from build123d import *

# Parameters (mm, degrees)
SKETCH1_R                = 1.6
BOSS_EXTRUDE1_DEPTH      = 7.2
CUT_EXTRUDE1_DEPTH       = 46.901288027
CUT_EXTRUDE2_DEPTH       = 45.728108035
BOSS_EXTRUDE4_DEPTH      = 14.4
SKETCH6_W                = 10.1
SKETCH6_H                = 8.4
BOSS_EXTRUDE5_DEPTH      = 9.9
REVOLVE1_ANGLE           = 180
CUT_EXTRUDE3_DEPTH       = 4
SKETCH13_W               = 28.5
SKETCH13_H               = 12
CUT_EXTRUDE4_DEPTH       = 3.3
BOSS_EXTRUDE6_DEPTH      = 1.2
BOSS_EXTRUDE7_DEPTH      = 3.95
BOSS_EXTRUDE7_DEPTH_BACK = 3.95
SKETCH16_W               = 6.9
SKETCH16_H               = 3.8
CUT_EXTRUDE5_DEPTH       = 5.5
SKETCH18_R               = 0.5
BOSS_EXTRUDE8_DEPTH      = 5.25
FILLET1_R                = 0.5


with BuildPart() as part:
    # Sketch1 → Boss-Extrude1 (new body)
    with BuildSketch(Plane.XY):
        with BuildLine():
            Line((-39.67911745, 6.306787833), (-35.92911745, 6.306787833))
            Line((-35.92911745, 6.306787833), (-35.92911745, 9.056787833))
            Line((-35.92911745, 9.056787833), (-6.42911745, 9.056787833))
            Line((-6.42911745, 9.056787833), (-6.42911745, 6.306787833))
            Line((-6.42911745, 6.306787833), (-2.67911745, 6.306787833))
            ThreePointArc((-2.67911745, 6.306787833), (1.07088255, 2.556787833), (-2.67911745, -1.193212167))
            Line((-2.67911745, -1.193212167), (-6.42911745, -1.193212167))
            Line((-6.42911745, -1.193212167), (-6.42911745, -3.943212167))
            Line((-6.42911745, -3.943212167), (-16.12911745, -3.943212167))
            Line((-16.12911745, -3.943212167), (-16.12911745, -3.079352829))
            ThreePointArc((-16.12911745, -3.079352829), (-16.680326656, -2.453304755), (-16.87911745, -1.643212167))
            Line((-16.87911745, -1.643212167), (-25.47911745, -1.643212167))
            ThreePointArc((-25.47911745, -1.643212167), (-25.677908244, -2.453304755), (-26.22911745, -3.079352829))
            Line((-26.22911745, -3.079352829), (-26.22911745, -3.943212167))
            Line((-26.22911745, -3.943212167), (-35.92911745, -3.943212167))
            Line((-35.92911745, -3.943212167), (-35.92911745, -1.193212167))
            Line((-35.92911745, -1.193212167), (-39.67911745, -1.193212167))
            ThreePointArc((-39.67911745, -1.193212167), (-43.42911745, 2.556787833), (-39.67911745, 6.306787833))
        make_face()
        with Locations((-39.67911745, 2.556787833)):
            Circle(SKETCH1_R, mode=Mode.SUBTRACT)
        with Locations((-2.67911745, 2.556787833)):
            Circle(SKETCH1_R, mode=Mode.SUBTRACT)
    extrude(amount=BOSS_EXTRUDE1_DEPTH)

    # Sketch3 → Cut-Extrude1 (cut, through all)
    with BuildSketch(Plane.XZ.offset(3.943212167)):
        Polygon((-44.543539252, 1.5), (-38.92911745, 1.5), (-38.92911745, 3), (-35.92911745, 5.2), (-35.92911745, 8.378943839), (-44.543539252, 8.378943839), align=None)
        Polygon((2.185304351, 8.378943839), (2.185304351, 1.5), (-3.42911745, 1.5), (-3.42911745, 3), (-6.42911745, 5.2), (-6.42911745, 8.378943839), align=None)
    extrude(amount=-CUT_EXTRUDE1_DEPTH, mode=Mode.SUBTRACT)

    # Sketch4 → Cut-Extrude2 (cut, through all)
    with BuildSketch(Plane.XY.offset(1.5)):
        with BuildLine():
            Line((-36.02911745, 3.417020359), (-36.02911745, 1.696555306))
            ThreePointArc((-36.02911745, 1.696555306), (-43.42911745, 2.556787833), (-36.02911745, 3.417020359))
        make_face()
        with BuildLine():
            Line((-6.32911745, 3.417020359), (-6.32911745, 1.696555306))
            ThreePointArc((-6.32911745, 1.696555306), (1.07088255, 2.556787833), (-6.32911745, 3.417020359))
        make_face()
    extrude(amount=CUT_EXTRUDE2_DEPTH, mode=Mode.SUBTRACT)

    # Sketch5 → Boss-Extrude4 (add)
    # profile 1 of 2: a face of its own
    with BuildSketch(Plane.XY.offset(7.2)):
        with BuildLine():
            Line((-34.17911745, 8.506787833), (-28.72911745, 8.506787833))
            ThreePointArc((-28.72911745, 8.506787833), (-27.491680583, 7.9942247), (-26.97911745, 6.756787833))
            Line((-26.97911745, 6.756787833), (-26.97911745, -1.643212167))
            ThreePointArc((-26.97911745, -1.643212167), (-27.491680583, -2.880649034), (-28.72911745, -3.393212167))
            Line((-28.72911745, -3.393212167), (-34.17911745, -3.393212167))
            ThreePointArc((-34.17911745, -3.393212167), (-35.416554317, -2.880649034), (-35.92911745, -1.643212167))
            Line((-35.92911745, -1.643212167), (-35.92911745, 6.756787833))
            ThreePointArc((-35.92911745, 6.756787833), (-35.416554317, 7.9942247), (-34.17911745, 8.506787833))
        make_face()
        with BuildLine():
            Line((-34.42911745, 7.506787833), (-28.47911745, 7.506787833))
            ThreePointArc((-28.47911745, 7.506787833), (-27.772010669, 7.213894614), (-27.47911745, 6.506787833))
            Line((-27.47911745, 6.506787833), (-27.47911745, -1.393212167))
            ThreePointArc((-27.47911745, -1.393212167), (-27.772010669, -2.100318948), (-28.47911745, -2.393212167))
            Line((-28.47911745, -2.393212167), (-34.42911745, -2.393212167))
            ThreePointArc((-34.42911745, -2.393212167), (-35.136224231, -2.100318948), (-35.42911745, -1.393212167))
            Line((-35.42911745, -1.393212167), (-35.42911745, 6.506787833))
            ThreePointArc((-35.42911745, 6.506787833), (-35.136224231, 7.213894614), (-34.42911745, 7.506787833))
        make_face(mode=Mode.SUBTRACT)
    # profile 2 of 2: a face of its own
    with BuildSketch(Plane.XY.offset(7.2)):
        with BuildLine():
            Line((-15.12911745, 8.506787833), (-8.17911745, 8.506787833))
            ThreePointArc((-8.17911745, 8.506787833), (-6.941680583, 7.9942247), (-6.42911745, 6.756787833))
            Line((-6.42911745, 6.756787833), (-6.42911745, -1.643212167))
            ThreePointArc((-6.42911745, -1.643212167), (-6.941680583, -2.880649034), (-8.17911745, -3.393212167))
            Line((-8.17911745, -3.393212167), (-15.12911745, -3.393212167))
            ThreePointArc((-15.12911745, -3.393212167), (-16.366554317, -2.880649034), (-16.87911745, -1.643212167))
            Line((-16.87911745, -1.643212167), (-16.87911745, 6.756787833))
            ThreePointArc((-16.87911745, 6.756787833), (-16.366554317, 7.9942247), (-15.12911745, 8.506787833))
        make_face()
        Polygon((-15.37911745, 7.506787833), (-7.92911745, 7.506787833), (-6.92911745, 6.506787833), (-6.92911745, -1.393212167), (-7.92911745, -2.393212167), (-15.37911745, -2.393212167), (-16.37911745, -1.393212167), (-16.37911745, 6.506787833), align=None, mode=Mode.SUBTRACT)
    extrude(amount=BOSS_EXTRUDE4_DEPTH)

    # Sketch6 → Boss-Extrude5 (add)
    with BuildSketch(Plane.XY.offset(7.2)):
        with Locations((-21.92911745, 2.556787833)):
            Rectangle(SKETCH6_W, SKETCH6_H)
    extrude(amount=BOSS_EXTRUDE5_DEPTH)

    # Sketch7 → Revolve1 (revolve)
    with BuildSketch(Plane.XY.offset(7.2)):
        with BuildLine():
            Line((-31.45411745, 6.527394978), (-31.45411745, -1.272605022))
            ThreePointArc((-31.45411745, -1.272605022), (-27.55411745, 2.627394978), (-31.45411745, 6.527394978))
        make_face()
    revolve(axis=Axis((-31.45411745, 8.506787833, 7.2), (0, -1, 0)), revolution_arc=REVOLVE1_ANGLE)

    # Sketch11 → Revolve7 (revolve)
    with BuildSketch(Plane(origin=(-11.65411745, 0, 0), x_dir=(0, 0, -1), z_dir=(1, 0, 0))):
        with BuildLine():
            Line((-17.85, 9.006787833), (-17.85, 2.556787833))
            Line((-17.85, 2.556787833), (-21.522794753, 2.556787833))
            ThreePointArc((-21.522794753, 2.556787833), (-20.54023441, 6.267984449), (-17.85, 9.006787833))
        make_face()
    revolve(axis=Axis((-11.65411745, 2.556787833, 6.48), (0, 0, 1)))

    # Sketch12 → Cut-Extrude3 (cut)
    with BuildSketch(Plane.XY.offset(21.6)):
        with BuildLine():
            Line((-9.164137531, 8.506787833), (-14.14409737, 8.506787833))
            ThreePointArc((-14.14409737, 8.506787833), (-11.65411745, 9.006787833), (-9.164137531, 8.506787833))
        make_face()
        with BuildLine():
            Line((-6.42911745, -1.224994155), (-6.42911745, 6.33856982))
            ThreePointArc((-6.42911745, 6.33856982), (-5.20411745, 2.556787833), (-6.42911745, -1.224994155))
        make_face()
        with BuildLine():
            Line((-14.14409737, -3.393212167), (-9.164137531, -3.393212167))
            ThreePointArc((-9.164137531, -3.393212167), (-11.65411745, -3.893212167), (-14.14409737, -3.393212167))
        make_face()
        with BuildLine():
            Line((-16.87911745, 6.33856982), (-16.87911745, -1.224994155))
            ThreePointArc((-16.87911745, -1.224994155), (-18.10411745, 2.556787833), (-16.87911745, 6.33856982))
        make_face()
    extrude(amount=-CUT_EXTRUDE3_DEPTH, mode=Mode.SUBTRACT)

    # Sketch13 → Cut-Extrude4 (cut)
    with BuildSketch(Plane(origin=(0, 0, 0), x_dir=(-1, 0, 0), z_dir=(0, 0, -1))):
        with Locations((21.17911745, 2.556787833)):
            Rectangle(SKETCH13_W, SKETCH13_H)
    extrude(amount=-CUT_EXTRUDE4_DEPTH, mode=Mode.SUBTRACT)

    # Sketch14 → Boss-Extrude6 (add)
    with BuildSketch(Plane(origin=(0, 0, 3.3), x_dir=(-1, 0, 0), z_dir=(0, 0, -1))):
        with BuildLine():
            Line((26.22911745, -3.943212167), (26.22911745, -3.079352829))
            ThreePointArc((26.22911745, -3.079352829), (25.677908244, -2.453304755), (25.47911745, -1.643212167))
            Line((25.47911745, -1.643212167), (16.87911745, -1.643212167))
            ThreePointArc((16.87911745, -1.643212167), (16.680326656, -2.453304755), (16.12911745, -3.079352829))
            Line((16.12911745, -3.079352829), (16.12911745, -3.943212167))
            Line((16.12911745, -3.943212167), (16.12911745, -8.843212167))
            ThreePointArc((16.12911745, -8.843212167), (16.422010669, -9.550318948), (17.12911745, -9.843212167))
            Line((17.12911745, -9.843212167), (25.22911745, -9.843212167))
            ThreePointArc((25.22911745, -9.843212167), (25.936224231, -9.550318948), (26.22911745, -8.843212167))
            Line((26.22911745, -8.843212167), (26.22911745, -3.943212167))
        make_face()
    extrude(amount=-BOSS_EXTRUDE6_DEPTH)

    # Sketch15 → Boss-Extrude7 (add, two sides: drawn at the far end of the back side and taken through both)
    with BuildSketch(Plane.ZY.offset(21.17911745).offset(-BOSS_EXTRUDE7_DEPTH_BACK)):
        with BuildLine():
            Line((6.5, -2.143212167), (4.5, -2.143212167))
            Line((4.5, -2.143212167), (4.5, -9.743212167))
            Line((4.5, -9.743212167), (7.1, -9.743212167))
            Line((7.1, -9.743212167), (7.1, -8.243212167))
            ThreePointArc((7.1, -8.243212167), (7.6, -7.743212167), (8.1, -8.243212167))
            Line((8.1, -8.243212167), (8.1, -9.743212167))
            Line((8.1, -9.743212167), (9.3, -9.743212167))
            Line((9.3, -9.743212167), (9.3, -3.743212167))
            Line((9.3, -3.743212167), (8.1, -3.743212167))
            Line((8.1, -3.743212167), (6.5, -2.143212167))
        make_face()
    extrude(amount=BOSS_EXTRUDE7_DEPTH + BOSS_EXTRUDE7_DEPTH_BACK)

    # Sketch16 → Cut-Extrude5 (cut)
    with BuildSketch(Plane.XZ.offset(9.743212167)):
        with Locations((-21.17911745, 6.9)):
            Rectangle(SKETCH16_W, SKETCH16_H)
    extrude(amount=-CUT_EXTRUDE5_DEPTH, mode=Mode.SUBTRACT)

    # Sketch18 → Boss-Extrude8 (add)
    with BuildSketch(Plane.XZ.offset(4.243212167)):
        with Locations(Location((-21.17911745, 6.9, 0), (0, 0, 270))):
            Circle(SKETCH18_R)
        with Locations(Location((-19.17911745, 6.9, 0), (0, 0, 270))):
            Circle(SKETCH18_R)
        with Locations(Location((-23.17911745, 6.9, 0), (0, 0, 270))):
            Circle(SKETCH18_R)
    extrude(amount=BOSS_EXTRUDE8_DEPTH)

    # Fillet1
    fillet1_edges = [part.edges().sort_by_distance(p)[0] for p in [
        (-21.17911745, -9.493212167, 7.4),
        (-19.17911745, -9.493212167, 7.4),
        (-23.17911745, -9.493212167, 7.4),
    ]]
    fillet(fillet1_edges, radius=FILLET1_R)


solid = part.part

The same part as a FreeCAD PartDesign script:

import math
import FreeCAD as App
import Part
import Sketcher

V = App.Vector
Q = App.Units.Quantity


def edges_at(feature, points):
    """Names of the edges that pass closest to the given points."""
    edges = feature.Shape.Edges
    near = lambda p: min(range(len(edges)), key=lambda i: edges[i].distToShape(Part.Vertex(*p))[0])
    return sorted({f"Edge{near(p) + 1}" for p in points})


def add_polygon(sketch, points):
    """Adds a closed chain of lines whose ends are joined by coincident constraints."""
    first, n = sketch.GeometryCount, len(points)
    for a, b in zip(points, points[1:] + points[:1]):
        sketch.addGeometry(Part.LineSegment(App.Vector(*a, 0), App.Vector(*b, 0)), False)
    for i in range(n):
        sketch.addConstraint(Sketcher.Constraint("Coincident", first + i, 2, first + (i + 1) % n, 1))

doc = App.newDocument("Part")
body = doc.addObject("PartDesign::Body", "Body")

sketch1 = body.newObject("Sketcher::SketchObject", "Sketch")
sketch1.AttachmentSupport = (doc.getObject("XY_Plane"), [""])
sketch1.MapMode = "FlatFace"
sketch1.addGeometry([
    Part.LineSegment(V(-35.929117, 6.306788, 0), V(-39.679117, 6.306788, 0)),
    Part.ArcOfCircle(Part.Circle(V(-39.679117, 2.556788, 0), V(0, 0, 1), 3.75), math.radians(90), math.radians(270)),
    Part.LineSegment(V(-39.679117, -1.193212, 0), V(-35.929117, -1.193212, 0)),
    Part.LineSegment(V(-35.929117, -1.193212, 0), V(-35.929117, -3.943212, 0)),
    Part.LineSegment(V(-35.929117, -3.943212, 0), V(-26.229117, -3.943212, 0)),
    Part.LineSegment(V(-26.229117, -3.943212, 0), V(-26.229117, -3.079353, 0)),
    Part.ArcOfCircle(Part.Circle(V(-27.229117, -1.643212, 0), V(0, 0, 1), 1.75), math.radians(-55.150095), math.radians(0)),
    Part.LineSegment(V(-25.479117, -1.643212, 0), V(-16.879117, -1.643212, 0)),
    Part.ArcOfCircle(Part.Circle(V(-15.129117, -1.643212, 0), V(0, 0, 1), 1.75), math.radians(180), math.radians(235.150095)),
    Part.LineSegment(V(-16.129117, -3.079353, 0), V(-16.129117, -3.943212, 0)),
    Part.LineSegment(V(-16.129117, -3.943212, 0), V(-6.429117, -3.943212, 0)),
    Part.LineSegment(V(-6.429117, -3.943212, 0), V(-6.429117, -1.193212, 0)),
    Part.LineSegment(V(-6.429117, -1.193212, 0), V(-2.679117, -1.193212, 0)),
    Part.ArcOfCircle(Part.Circle(V(-2.679117, 2.556788, 0), V(0, 0, 1), 3.75), math.radians(-90), math.radians(90)),
    Part.LineSegment(V(-2.679117, 6.306788, 0), V(-6.429117, 6.306788, 0)),
    Part.LineSegment(V(-6.429117, 6.306788, 0), V(-6.429117, 9.056788, 0)),
    Part.LineSegment(V(-6.429117, 9.056788, 0), V(-35.929117, 9.056788, 0)),
    Part.LineSegment(V(-35.929117, 9.056788, 0), V(-35.929117, 6.306788, 0)),
    Part.Circle(V(-2.679117, 2.556788, 0), V(0, 0, 1), 1.6),
    Part.Circle(V(-39.679117, 2.556788, 0), V(0, 0, 1), 1.6),
], False)
sketch1.addConstraint([
    Sketcher.Constraint("Tangent", 0, 2, 1, 1),
    Sketcher.Constraint("Tangent", 1, 2, 2, 1),
    Sketcher.Constraint("Coincident", 2, 2, 3, 1),
    Sketcher.Constraint("Coincident", 3, 2, 4, 1),
    Sketcher.Constraint("Coincident", 4, 2, 5, 1),
    Sketcher.Constraint("Coincident", 5, 2, 6, 1),
    Sketcher.Constraint("Coincident", 6, 2, 7, 1),
    Sketcher.Constraint("Coincident", 7, 2, 8, 1),
    Sketcher.Constraint("Coincident", 8, 2, 9, 1),
    Sketcher.Constraint("Coincident", 9, 2, 10, 1),
    Sketcher.Constraint("Coincident", 10, 2, 11, 1),
    Sketcher.Constraint("Coincident", 11, 2, 12, 1),
    Sketcher.Constraint("Tangent", 12, 2, 13, 1),
    Sketcher.Constraint("Tangent", 13, 2, 14, 1),
    Sketcher.Constraint("Coincident", 14, 2, 15, 1),
    Sketcher.Constraint("Coincident", 15, 2, 16, 1),
    Sketcher.Constraint("Coincident", 16, 2, 17, 1),
    Sketcher.Constraint("Coincident", 17, 2, 0, 1),
    Sketcher.Constraint("Horizontal", 0),
    Sketcher.Constraint("Horizontal", 2),
    Sketcher.Constraint("Vertical", 3),
    Sketcher.Constraint("Horizontal", 4),
    Sketcher.Constraint("Vertical", 5),
    Sketcher.Constraint("Horizontal", 7),
    Sketcher.Constraint("Vertical", 9),
    Sketcher.Constraint("Horizontal", 10),
    Sketcher.Constraint("Vertical", 11),
    Sketcher.Constraint("Horizontal", 12),
    Sketcher.Constraint("Horizontal", 14),
    Sketcher.Constraint("Vertical", 15),
    Sketcher.Constraint("Horizontal", 16),
    Sketcher.Constraint("Vertical", 17),
    Sketcher.Constraint("Coincident", 18, 3, 13, 3),
    Sketcher.Constraint("Coincident", 19, 3, 1, 3),
    Sketcher.Constraint("Equal", 6, 8),
    Sketcher.Constraint("Equal", 1, 13),
    Sketcher.Constraint("Equal", 18, 19),
    Sketcher.Constraint("Horizontal", 6, 3, 8, 3),
    Sketcher.Constraint("Horizontal", 1, 3, 13, 3),
    Sketcher.Constraint("Horizontal", 8, 3, 6, 2),
    Sketcher.Constraint("Horizontal", 5, 2, 8, 2),
    Sketcher.Constraint("Horizontal", 4, 2, 9, 2),
    Sketcher.Constraint("Vertical", 11, 2, 14, 2),
    Sketcher.Constraint("Vertical", 3, 2, 16, 2),
    Sketcher.Constraint("Equal", 4, 10),
    Sketcher.Constraint("Equal", 2, 12),
    Sketcher.Constraint("Equal", 11, 15),
    Sketcher.Constraint("Diameter", 18, Q("3.2 mm")),
    Sketcher.Constraint("Radius", 1, Q("3.75 mm")),
    Sketcher.Constraint("Radius", 6, Q("1.75 mm")),
    Sketcher.Constraint("DistanceX", 4, 1, 4, 2, Q("9.7 mm")),
    Sketcher.Constraint("DistanceX", 7, 1, 7, 2, Q("8.6 mm")),
    Sketcher.Constraint("DistanceX", 16, 2, 16, 1, Q("29.5 mm")),
    Sketcher.Constraint("DistanceX", 1, 3, 13, 3, Q("37 mm")),
    Sketcher.Constraint("DistanceY", 3, 2, 3, 1, Q("2.75 mm")),
    Sketcher.Constraint("DistanceY", 6, 3, 1, 3, Q("4.2 mm")),
    Sketcher.Constraint("DistanceX", 1, 3, -1, 1, Q("39.679117 mm")),
    Sketcher.Constraint("DistanceY", -1, 1, 1, 3, Q("2.556788 mm")),
])
pad1 = body.newObject("PartDesign::Pad", "Pad")
pad1.Profile = sketch1
pad1.Length = 7.2

sketch2 = body.newObject("Sketcher::SketchObject", "Sketch001")
sketch2.AttachmentSupport = (doc.getObject("XZ_Plane"), [""])
sketch2.MapMode = "FlatFace"
sketch2.AttachmentOffset = App.Placement(V(0, 0, 3.943212), App.Rotation())
add_polygon(sketch2, [(-44.543539, 1.5), (-38.929117, 1.5), (-38.929117, 3), (-35.929117, 5.2), (-35.929117, 8.378944), (-44.543539, 8.378944)])
add_polygon(sketch2, [(2.185304, 1.5), (2.185304, 8.378944), (-6.429117, 8.378944), (-6.429117, 5.2), (-3.429117, 3), (-3.429117, 1.5)])
sketch2.addConstraint([
    Sketcher.Constraint("Horizontal", 0),
    Sketcher.Constraint("Vertical", 1),
    Sketcher.Constraint("Vertical", 3),
    Sketcher.Constraint("Horizontal", 4),
    Sketcher.Constraint("Vertical", 5),
    Sketcher.Constraint("Vertical", 6),
    Sketcher.Constraint("Horizontal", 7),
    Sketcher.Constraint("Vertical", 8),
    Sketcher.Constraint("Vertical", 10),
    Sketcher.Constraint("Horizontal", 11),
    Sketcher.Constraint("Horizontal", 4, 2, 6, 2),
    Sketcher.Constraint("Horizontal", 2, 2, 8, 2),
    Sketcher.Constraint("Horizontal", 1, 2, 9, 2),
    Sketcher.Constraint("Horizontal", 5, 2, 10, 2),
    Sketcher.Constraint("Equal", 4, 7),
    Sketcher.Constraint("Equal", 0, 11),
    Sketcher.Constraint("DistanceY", 1, 1, 1, 2, Q("1.5 mm")),
    Sketcher.Constraint("DistanceY", -1, 1, 1, 2, Q("3 mm")),
    Sketcher.Constraint("DistanceX", 1, 2, 2, 2, Q("3 mm")),
    Sketcher.Constraint("DistanceY", -1, 1, 2, 2, Q("5.2 mm")),
    Sketcher.Constraint("DistanceX", 3, 2, 7, 2, Q("29.5 mm")),
    Sketcher.Constraint("DistanceX", 0, 1, 0, 2, Q("5.614422 mm")),
    Sketcher.Constraint("DistanceY", 3, 1, 3, 2, Q("3.178944 mm")),
    Sketcher.Constraint("DistanceX", 4, 2, -1, 1, Q("44.543539 mm")),
])
pocket1 = body.newObject("PartDesign::Pocket", "Pocket")
pocket1.Profile = sketch2
pocket1.Type = "ThroughAll"

sketch3 = body.newObject("Sketcher::SketchObject", "Sketch002")
sketch3.AttachmentSupport = (doc.getObject("XY_Plane"), [""])
sketch3.MapMode = "FlatFace"
sketch3.AttachmentOffset = App.Placement(V(0, 0, 1.5), App.Rotation())
sketch3.addGeometry([
    Part.LineSegment(V(-36.029117, 1.696555, 0), V(-36.029117, 3.41702, 0)),
    Part.ArcOfCircle(Part.Circle(V(-39.679117, 2.556788, 0), V(0, 0, 1), 3.75), math.radians(13.261476), math.radians(346.738524)),
    Part.LineSegment(V(-6.329117, 3.41702, 0), V(-6.329117, 1.696555, 0)),
    Part.ArcOfCircle(Part.Circle(V(-2.679117, 2.556788, 0), V(0, 0, 1), 3.75), math.radians(-166.738524), math.radians(166.738524)),
], False)
sketch3.addConstraint([
    Sketcher.Constraint("Coincident", 0, 1, 1, 2),
    Sketcher.Constraint("Coincident", 1, 1, 0, 2),
    Sketcher.Constraint("Coincident", 2, 1, 3, 2),
    Sketcher.Constraint("Coincident", 3, 1, 2, 2),
    Sketcher.Constraint("Vertical", 0),
    Sketcher.Constraint("Vertical", 2),
    Sketcher.Constraint("Equal", 1, 3),
    Sketcher.Constraint("Horizontal", 1, 3, 3, 3),
    Sketcher.Constraint("Horizontal", 1, 1, 2, 1),
    Sketcher.Constraint("Radius", 1, Q("3.75 mm")),
    Sketcher.Constraint("DistanceX", 1, 3, 3, 3, Q("37 mm")),
    Sketcher.Constraint("DistanceX", 1, 1, 2, 1, Q("29.7 mm")),
    Sketcher.Constraint("DistanceY", -1, 1, 1, 1, Q("3.41702 mm")),
    Sketcher.Constraint("DistanceX", 1, 3, -1, 1, Q("39.679117 mm")),
])
pocket2 = body.newObject("PartDesign::Pocket", "Pocket001")
pocket2.Profile = sketch3
pocket2.Type = "ThroughAll"
pocket2.Reversed = True

sketch4 = body.newObject("Sketcher::SketchObject", "Sketch003")
sketch4.AttachmentSupport = (doc.getObject("XY_Plane"), [""])
sketch4.MapMode = "FlatFace"
sketch4.AttachmentOffset = App.Placement(V(0, 0, 7.2), App.Rotation())
sketch4.addGeometry(Part.LineSegment(V(-28.729117, 8.506788, 0), V(-34.179117, 8.506788, 0)), False)
sketch4.addGeometry(Part.ArcOfCircle(Part.Circle(V(-34.179117, 6.756788, 0), V(0, 0, 1), 1.75), math.radians(90), math.radians(180)), False)
sketch4.addGeometry(Part.LineSegment(V(-35.929117, 6.756788, 0), V(-35.929117, -1.643212, 0)), False)
sketch4.addGeometry(Part.ArcOfCircle(Part.Circle(V(-34.179117, -1.643212, 0), V(0, 0, 1), 1.75), math.radians(180), math.radians(270)), False)
sketch4.addGeometry(Part.LineSegment(V(-34.179117, -3.393212, 0), V(-28.729117, -3.393212, 0)), False)
sketch4.addGeometry(Part.ArcOfCircle(Part.Circle(V(-28.729117, -1.643212, 0), V(0, 0, 1), 1.75), math.radians(-90), math.radians(0)), False)
sketch4.addGeometry(Part.LineSegment(V(-26.979117, -1.643212, 0), V(-26.979117, 6.756788, 0)), False)
sketch4.addGeometry(Part.ArcOfCircle(Part.Circle(V(-28.729117, 6.756788, 0), V(0, 0, 1), 1.75), math.radians(0), math.radians(90)), False)
sketch4.addGeometry(Part.LineSegment(V(-34.429117, 7.506788, 0), V(-28.479117, 7.506788, 0)), False)
sketch4.addGeometry(Part.ArcOfCircle(Part.Circle(V(-28.479117, 6.506788, 0), V(0, 0, 1), 1), math.radians(0), math.radians(90)), False)
sketch4.addGeometry(Part.LineSegment(V(-27.479117, 6.506788, 0), V(-27.479117, -1.393212, 0)), False)
sketch4.addGeometry(Part.ArcOfCircle(Part.Circle(V(-28.479117, -1.393212, 0), V(0, 0, 1), 1), math.radians(-90), math.radians(0)), False)
sketch4.addGeometry(Part.LineSegment(V(-28.479117, -2.393212, 0), V(-34.429117, -2.393212, 0)), False)
sketch4.addGeometry(Part.ArcOfCircle(Part.Circle(V(-34.429117, -1.393212, 0), V(0, 0, 1), 1), math.radians(-180), math.radians(-90)), False)
sketch4.addGeometry(Part.LineSegment(V(-35.429117, -1.393212, 0), V(-35.429117, 6.506788, 0)), False)
sketch4.addGeometry(Part.ArcOfCircle(Part.Circle(V(-34.429117, 6.506788, 0), V(0, 0, 1), 1), math.radians(90), math.radians(180)), False)
sketch4.addGeometry(Part.LineSegment(V(-8.179117, 8.506788, 0), V(-15.129117, 8.506788, 0)), False)
sketch4.addGeometry(Part.ArcOfCircle(Part.Circle(V(-15.129117, 6.756788, 0), V(0, 0, 1), 1.75), math.radians(90), math.radians(180)), False)
sketch4.addGeometry(Part.LineSegment(V(-16.879117, 6.756788, 0), V(-16.879117, -1.643212, 0)), False)
sketch4.addGeometry(Part.ArcOfCircle(Part.Circle(V(-15.129117, -1.643212, 0), V(0, 0, 1), 1.75), math.radians(180), math.radians(270)), False)
sketch4.addGeometry(Part.LineSegment(V(-15.129117, -3.393212, 0), V(-8.179117, -3.393212, 0)), False)
sketch4.addGeometry(Part.ArcOfCircle(Part.Circle(V(-8.179117, -1.643212, 0), V(0, 0, 1), 1.75), math.radians(-90), math.radians(0)), False)
sketch4.addGeometry(Part.LineSegment(V(-6.429117, -1.643212, 0), V(-6.429117, 6.756788, 0)), False)
sketch4.addGeometry(Part.ArcOfCircle(Part.Circle(V(-8.179117, 6.756788, 0), V(0, 0, 1), 1.75), math.radians(0), math.radians(90)), False)
add_polygon(sketch4, [(-15.379117, 7.506788), (-7.929117, 7.506788), (-6.929117, 6.506788), (-6.929117, -1.393212), (-7.929117, -2.393212), (-15.379117, -2.393212), (-16.379117, -1.393212), (-16.379117, 6.506788)])
sketch4.addConstraint([
    Sketcher.Constraint("Tangent", 0, 2, 1, 1),
    Sketcher.Constraint("Tangent", 1, 2, 2, 1),
    Sketcher.Constraint("Tangent", 2, 2, 3, 1),
    Sketcher.Constraint("Tangent", 3, 2, 4, 1),
    Sketcher.Constraint("Tangent", 4, 2, 5, 1),
    Sketcher.Constraint("Tangent", 5, 2, 6, 1),
    Sketcher.Constraint("Tangent", 6, 2, 7, 1),
    Sketcher.Constraint("Tangent", 7, 2, 0, 1),
    Sketcher.Constraint("Tangent", 8, 2, 9, 2),
    Sketcher.Constraint("Tangent", 9, 1, 10, 1),
    Sketcher.Constraint("Tangent", 10, 2, 11, 2),
    Sketcher.Constraint("Tangent", 11, 1, 12, 1),
    Sketcher.Constraint("Tangent", 12, 2, 13, 2),
    Sketcher.Constraint("Tangent", 13, 1, 14, 1),
    Sketcher.Constraint("Tangent", 14, 2, 15, 2),
    Sketcher.Constraint("Tangent", 15, 1, 8, 1),
    Sketcher.Constraint("Tangent", 16, 2, 17, 1),
    Sketcher.Constraint("Tangent", 17, 2, 18, 1),
    Sketcher.Constraint("Tangent", 18, 2, 19, 1),
    Sketcher.Constraint("Tangent", 19, 2, 20, 1),
    Sketcher.Constraint("Tangent", 20, 2, 21, 1),
    Sketcher.Constraint("Tangent", 21, 2, 22, 1),
    Sketcher.Constraint("Tangent", 22, 2, 23, 1),
    Sketcher.Constraint("Tangent", 23, 2, 16, 1),
    Sketcher.Constraint("Horizontal", 0),
    Sketcher.Constraint("Vertical", 2),
    Sketcher.Constraint("Horizontal", 4),
    Sketcher.Constraint("Vertical", 6),
    Sketcher.Constraint("Horizontal", 8),
    Sketcher.Constraint("Vertical", 10),
    Sketcher.Constraint("Horizontal", 12),
    Sketcher.Constraint("Vertical", 14),
    Sketcher.Constraint("Horizontal", 16),
    Sketcher.Constraint("Vertical", 18),
    Sketcher.Constraint("Horizontal", 20),
    Sketcher.Constraint("Vertical", 22),
    Sketcher.Constraint("Horizontal", 24),
    Sketcher.Constraint("Vertical", 26),
    Sketcher.Constraint("Horizontal", 28),
    Sketcher.Constraint("Vertical", 30),
    Sketcher.Constraint("Equal", 1, 3),
    Sketcher.Constraint("Equal", 3, 5),
    Sketcher.Constraint("Equal", 5, 7),
    Sketcher.Constraint("Equal", 9, 11),
    Sketcher.Constraint("Equal", 11, 13),
    Sketcher.Constraint("Equal", 13, 15),
    Sketcher.Constraint("Equal", 7, 17),
    Sketcher.Constraint("Equal", 17, 19),
    Sketcher.Constraint("Equal", 19, 21),
    Sketcher.Constraint("Equal", 21, 23),
    Sketcher.Constraint("Perpendicular", 25, 27),
    Sketcher.Constraint("Perpendicular", 27, 29),
    Sketcher.Constraint("Perpendicular", 29, 31),
    Sketcher.Constraint("Horizontal", 7, 3, 17, 3),
    Sketcher.Constraint("Horizontal", 5, 3, 19, 3),
    Sketcher.Constraint("Horizontal", 15, 1, 24, 2),
    Sketcher.Constraint("Horizontal", 14, 2, 25, 2),
    Sketcher.Constraint("Horizontal", 13, 1, 26, 2),
    Sketcher.Constraint("Horizontal", 12, 2, 27, 2),
    Sketcher.Constraint("Horizontal", 26, 2, 29, 2),
    Sketcher.Constraint("Horizontal", 25, 2, 30, 2),
    Sketcher.Constraint("Vertical", 24, 2, 27, 2),
    Sketcher.Constraint("Radius", 9, Q("1 mm")),
    Sketcher.Constraint("Radius", 1, Q("1.75 mm")),
    Sketcher.Constraint("DistanceY", 2, 2, 2, 1, Q("8.4 mm")),
    Sketcher.Constraint("DistanceY", 10, 2, 10, 1, Q("7.9 mm")),
    Sketcher.Constraint("DistanceY", 15, 3, 0, 2, Q("2 mm")),
    Sketcher.Constraint("DistanceX", 0, 2, 0, 1, Q("5.45 mm")),
    Sketcher.Constraint("DistanceX", 8, 1, 8, 2, Q("5.95 mm")),
    Sketcher.Constraint("DistanceX", 16, 2, 16, 1, Q("6.95 mm")),
    Sketcher.Constraint("DistanceX", 24, 1, 24, 2, Q("7.45 mm")),
    Sketcher.Constraint("DistanceX", 1, 3, 9, 3, Q("5.7 mm")),
    Sketcher.Constraint("DistanceX", 7, 3, 17, 3, Q("13.6 mm")),
    Sketcher.Constraint("DistanceX", 24, 2, 22, 2, Q("1.5 mm")),
    Sketcher.Constraint("DistanceX", 1, 3, -1, 1, Q("34.179117 mm")),
    Sketcher.Constraint("DistanceY", -1, 1, 1, 3, Q("6.756788 mm")),
])
pad2 = body.newObject("PartDesign::Pad", "Pad001")
pad2.Profile = sketch4
pad2.Length = 14.4

sketch5 = body.newObject("Sketcher::SketchObject", "Sketch004")
sketch5.AttachmentSupport = (doc.getObject("XY_Plane"), [""])
sketch5.MapMode = "FlatFace"
sketch5.AttachmentOffset = App.Placement(V(0, 0, 7.2), App.Rotation())
add_polygon(sketch5, [(-26.979117, 6.756788), (-26.979117, -1.643212), (-16.879117, -1.643212), (-16.879117, 6.756788)])
sketch5.addConstraint([
    Sketcher.Constraint("Vertical", 0),
    Sketcher.Constraint("Horizontal", 1),
    Sketcher.Constraint("Vertical", 2),
    Sketcher.Constraint("Horizontal", 3),
    Sketcher.Constraint("DistanceX", 1, 1, 1, 2, Q("10.1 mm")),
    Sketcher.Constraint("DistanceY", 0, 2, 0, 1, Q("8.4 mm")),
    Sketcher.Constraint("DistanceX", 0, 2, -1, 1, Q("26.979117 mm")),
    Sketcher.Constraint("DistanceY", 0, 2, -1, 1, Q("1.643212 mm")),
])
pad3 = body.newObject("PartDesign::Pad", "Pad002")
pad3.Profile = sketch5
pad3.Length = 9.9

sketch6 = body.newObject("Sketcher::SketchObject", "Sketch005")
sketch6.AttachmentSupport = (doc.getObject("XY_Plane"), [""])
sketch6.MapMode = "FlatFace"
sketch6.AttachmentOffset = App.Placement(V(0, 0, 7.2), App.Rotation())
sketch6.addGeometry([
    Part.LineSegment(V(-31.454117, 6.527395, 0), V(-31.454117, -1.272605, 0)),
    Part.ArcOfCircle(Part.Circle(V(-31.454117, 2.627395, 0), V(0, 0, 1), 3.9), math.radians(-90), math.radians(90)),
], False)
sketch6.addGeometry(Part.LineSegment(V(-31.454117, 6.527395, 0), V(-31.454117, -1.272605, 0)), True)
sketch6.addConstraint([
    Sketcher.Constraint("Coincident", 0, 1, 1, 2),
    Sketcher.Constraint("Coincident", 1, 1, 0, 2),
    Sketcher.Constraint("Vertical", 0),
    Sketcher.Constraint("Vertical", 2),
    Sketcher.Constraint("Coincident", 2, 1, 0, 1),
    Sketcher.Constraint("Vertical", 1, 3, 0, 1),
    Sketcher.Constraint("Equal", 0, 2),
    Sketcher.Constraint("Radius", 1, Q("3.9 mm")),
    Sketcher.Constraint("DistanceX", 1, 3, -1, 1, Q("31.454117 mm")),
    Sketcher.Constraint("DistanceY", -1, 1, 1, 3, Q("2.627395 mm")),
])
revolution = body.newObject("PartDesign::Revolution", "Revolution")
revolution.Profile = sketch6
revolution.ReferenceAxis = (sketch6, ["Axis0"])
revolution.Angle = 180

sketch7 = body.newObject("Sketcher::SketchObject", "Sketch006")
sketch7.AttachmentSupport = (doc.getObject("YZ_Plane"), [""])
sketch7.MapMode = "FlatFace"
sketch7.AttachmentOffset = App.Placement(V(0, 0, -11.654117), App.Rotation())
sketch7.addGeometry([
    Part.LineSegment(V(2.556788, 17.85, 0), V(9.006788, 17.85, 0)),
    Part.ArcOfCircle(Part.Circle(V(2.556788, 14.022795, 0), V(0, 0, 1), 7.5), math.radians(30.683417), math.radians(90)),
    Part.LineSegment(V(2.556788, 21.522795, 0), V(2.556788, 17.85, 0)),
], False)
sketch7.addGeometry(Part.LineSegment(V(2.556788, 14.022795, 0), V(2.556788, 21.522795, 0)), True)
sketch7.addConstraint([
    Sketcher.Constraint("Coincident", 0, 2, 1, 1),
    Sketcher.Constraint("Coincident", 1, 2, 2, 1),
    Sketcher.Constraint("Coincident", 2, 2, 0, 1),
    Sketcher.Constraint("Horizontal", 0),
    Sketcher.Constraint("Vertical", 2),
    Sketcher.Constraint("Vertical", 3),
    Sketcher.Constraint("Coincident", 3, 1, 1, 3),
    Sketcher.Constraint("Coincident", 3, 2, 1, 2),
    Sketcher.Constraint("Radius", 1, Q("7.5 mm")),
    Sketcher.Constraint("DistanceX", 0, 1, 0, 2, Q("6.45 mm")),
    Sketcher.Constraint("DistanceY", -1, 1, 0, 2, Q("17.85 mm")),
    Sketcher.Constraint("DistanceX", -1, 1, 1, 3, Q("2.556788 mm")),
])
revolution2 = body.newObject("PartDesign::Revolution", "Revolution001")
revolution2.Profile = sketch7
revolution2.ReferenceAxis = (sketch7, ["Axis0"])
revolution2.Angle = 360

sketch8 = body.newObject("Sketcher::SketchObject", "Sketch007")
sketch8.AttachmentSupport = (doc.getObject("XY_Plane"), [""])
sketch8.MapMode = "FlatFace"
sketch8.AttachmentOffset = App.Placement(V(0, 0, 21.6), App.Rotation())
sketch8.addGeometry([
    Part.LineSegment(V(-14.144097, 8.506788, 0), V(-9.164138, 8.506788, 0)),
    Part.ArcOfCircle(Part.Circle(V(-11.654117, 2.556788, 0), V(0, 0, 1), 6.45), math.radians(67.291469), math.radians(112.708531)),
    Part.LineSegment(V(-6.429117, 6.33857, 0), V(-6.429117, -1.224994, 0)),
    Part.ArcOfCircle(Part.Circle(V(-11.654117, 2.556788, 0), V(0, 0, 1), 6.45), math.radians(-35.896494), math.radians(35.896494)),
    Part.LineSegment(V(-9.164138, -3.393212, 0), V(-14.144097, -3.393212, 0)),
    Part.ArcOfCircle(Part.Circle(V(-11.654117, 2.556788, 0), V(0, 0, 1), 6.45), math.radians(-112.708531), math.radians(-67.291469)),
    Part.LineSegment(V(-16.879117, -1.224994, 0), V(-16.879117, 6.33857, 0)),
    Part.ArcOfCircle(Part.Circle(V(-11.654117, 2.556788, 0), V(0, 0, 1), 6.45), math.radians(144.103506), math.radians(215.896494)),
], False)
sketch8.addConstraint([
    Sketcher.Constraint("Coincident", 0, 1, 1, 2),
    Sketcher.Constraint("Coincident", 1, 1, 0, 2),
    Sketcher.Constraint("Coincident", 2, 1, 3, 2),
    Sketcher.Constraint("Coincident", 3, 1, 2, 2),
    Sketcher.Constraint("Coincident", 4, 1, 5, 2),
    Sketcher.Constraint("Coincident", 5, 1, 4, 2),
    Sketcher.Constraint("Coincident", 6, 1, 7, 2),
    Sketcher.Constraint("Coincident", 7, 1, 6, 2),
    Sketcher.Constraint("Horizontal", 0),
    Sketcher.Constraint("Vertical", 2),
    Sketcher.Constraint("Horizontal", 4),
    Sketcher.Constraint("Vertical", 6),
    Sketcher.Constraint("Coincident", 3, 3, 1, 3),
    Sketcher.Constraint("Coincident", 5, 3, 1, 3),
    Sketcher.Constraint("Coincident", 7, 3, 1, 3),
    Sketcher.Constraint("Equal", 1, 3),
    Sketcher.Constraint("Equal", 3, 5),
    Sketcher.Constraint("Equal", 5, 7),
    Sketcher.Constraint("Horizontal", 3, 1, 6, 1),
    Sketcher.Constraint("Vertical", 1, 1, 4, 1),
    Sketcher.Constraint("Radius", 1, Q("6.45 mm")),
    Sketcher.Constraint("DistanceY", 1, 3, 0, 1, Q("5.95 mm")),
    Sketcher.Constraint("DistanceX", 1, 3, 2, 1, Q("5.225 mm")),
    Sketcher.Constraint("DistanceY", -1, 1, 2, 1, Q("6.33857 mm")),
    Sketcher.Constraint("DistanceX", 1, 3, -1, 1, Q("11.654117 mm")),
])
pocket3 = body.newObject("PartDesign::Pocket", "Pocket002")
pocket3.Profile = sketch8
pocket3.Length = 4

sketch9 = body.newObject("Sketcher::SketchObject", "Sketch008")
sketch9.AttachmentSupport = (doc.getObject("XY_Plane"), [""])
sketch9.MapMode = "FlatFace"
add_polygon(sketch9, [(-6.929117, 8.556788), (-6.929117, -3.443212), (-35.429117, -3.443212), (-35.429117, 8.556788)])
sketch9.addConstraint([
    Sketcher.Constraint("Vertical", 0),
    Sketcher.Constraint("Horizontal", 1),
    Sketcher.Constraint("Vertical", 2),
    Sketcher.Constraint("Horizontal", 3),
    Sketcher.Constraint("DistanceY", 0, 2, 0, 1, Q("12 mm")),
    Sketcher.Constraint("DistanceX", 1, 2, 1, 1, Q("28.5 mm")),
    Sketcher.Constraint("DistanceX", 0, 2, -1, 1, Q("6.929117 mm")),
    Sketcher.Constraint("DistanceY", 0, 2, -1, 1, Q("3.443212 mm")),
])
pocket4 = body.newObject("PartDesign::Pocket", "Pocket003")
pocket4.Profile = sketch9
pocket4.Length = 3.3
pocket4.Reversed = True

sketch10 = body.newObject("Sketcher::SketchObject", "Sketch009")
sketch10.AttachmentSupport = (doc.getObject("XY_Plane"), [""])
sketch10.MapMode = "FlatFace"
sketch10.AttachmentOffset = App.Placement(V(0, 0, 3.3), App.Rotation())
sketch10.addGeometry([
    Part.ArcOfCircle(Part.Circle(V(-27.229117, -1.643212, 0), V(0, 0, 1), 1.75), math.radians(-55.150095), math.radians(0)),
    Part.LineSegment(V(-25.479117, -1.643212, 0), V(-16.879117, -1.643212, 0)),
    Part.ArcOfCircle(Part.Circle(V(-15.129117, -1.643212, 0), V(0, 0, 1), 1.75), math.radians(180), math.radians(235.150095)),
    Part.LineSegment(V(-16.129117, -3.079353, 0), V(-16.129117, -8.843212, 0)),
    Part.ArcOfCircle(Part.Circle(V(-17.129117, -8.843212, 0), V(0, 0, 1), 1), math.radians(-90), math.radians(0)),
    Part.LineSegment(V(-17.129117, -9.843212, 0), V(-25.229117, -9.843212, 0)),
    Part.ArcOfCircle(Part.Circle(V(-25.229117, -8.843212, 0), V(0, 0, 1), 1), math.radians(-180), math.radians(-90)),
    Part.LineSegment(V(-26.229117, -8.843212, 0), V(-26.229117, -3.079353, 0)),
], False)
sketch10.addConstraint([
    Sketcher.Constraint("Coincident", 0, 2, 1, 1),
    Sketcher.Constraint("Coincident", 1, 2, 2, 1),
    Sketcher.Constraint("Coincident", 2, 2, 3, 1),
    Sketcher.Constraint("Tangent", 3, 2, 4, 2),
    Sketcher.Constraint("Tangent", 4, 1, 5, 1),
    Sketcher.Constraint("Tangent", 5, 2, 6, 2),
    Sketcher.Constraint("Tangent", 6, 1, 7, 1),
    Sketcher.Constraint("Coincident", 7, 2, 0, 1),
    Sketcher.Constraint("Horizontal", 1),
    Sketcher.Constraint("Vertical", 3),
    Sketcher.Constraint("Horizontal", 5),
    Sketcher.Constraint("Vertical", 7),
    Sketcher.Constraint("Equal", 0, 2),
    Sketcher.Constraint("Equal", 4, 6),
    Sketcher.Constraint("Horizontal", 0, 3, 2, 3),
    Sketcher.Constraint("Horizontal", 2, 3, 0, 2),
    Sketcher.Constraint("Horizontal", 2, 2, 7, 2),
    Sketcher.Constraint("Radius", 4, Q("1 mm")),
    Sketcher.Constraint("Radius", 0, Q("1.75 mm")),
    Sketcher.Constraint("DistanceX", 1, 1, 1, 2, Q("8.6 mm")),
    Sketcher.Constraint("DistanceX", 5, 2, 5, 1, Q("8.1 mm")),
    Sketcher.Constraint("DistanceY", 4, 3, 2, 3, Q("7.2 mm")),
    Sketcher.Constraint("DistanceX", 0, 3, -1, 1, Q("27.229117 mm")),
    Sketcher.Constraint("DistanceY", 0, 3, -1, 1, Q("1.643212 mm")),
])
pad4 = body.newObject("PartDesign::Pad", "Pad003")
pad4.Profile = sketch10
pad4.Length = 1.2

sketch11 = body.newObject("Sketcher::SketchObject", "Sketch010")
sketch11.AttachmentSupport = (doc.getObject("YZ_Plane"), [""])
sketch11.MapMode = "FlatFace"
sketch11.AttachmentOffset = App.Placement(V(0, 0, -21.179117), App.Rotation())
sketch11.addGeometry([
    Part.LineSegment(V(-2.143212, 6.5, 0), V(-2.143212, 4.5, 0)),
    Part.LineSegment(V(-2.143212, 4.5, 0), V(-9.743212, 4.5, 0)),
    Part.LineSegment(V(-9.743212, 4.5, 0), V(-9.743212, 7.1, 0)),
    Part.LineSegment(V(-9.743212, 7.1, 0), V(-8.243212, 7.1, 0)),
    Part.ArcOfCircle(Part.Circle(V(-8.243212, 7.6, 0), V(0, 0, 1), 0.5), math.radians(-90), math.radians(90)),
    Part.LineSegment(V(-8.243212, 8.1, 0), V(-9.743212, 8.1, 0)),
    Part.LineSegment(V(-9.743212, 8.1, 0), V(-9.743212, 9.3, 0)),
    Part.LineSegment(V(-9.743212, 9.3, 0), V(-3.743212, 9.3, 0)),
    Part.LineSegment(V(-3.743212, 9.3, 0), V(-3.743212, 8.1, 0)),
    Part.LineSegment(V(-3.743212, 8.1, 0), V(-2.143212, 6.5, 0)),
], False)
sketch11.addConstraint([
    Sketcher.Constraint("Coincident", 0, 2, 1, 1),
    Sketcher.Constraint("Coincident", 1, 2, 2, 1),
    Sketcher.Constraint("Coincident", 2, 2, 3, 1),
    Sketcher.Constraint("Tangent", 3, 2, 4, 1),
    Sketcher.Constraint("Tangent", 4, 2, 5, 1),
    Sketcher.Constraint("Coincident", 5, 2, 6, 1),
    Sketcher.Constraint("Coincident", 6, 2, 7, 1),
    Sketcher.Constraint("Coincident", 7, 2, 8, 1),
    Sketcher.Constraint("Coincident", 8, 2, 9, 1),
    Sketcher.Constraint("Coincident", 9, 2, 0, 1),
    Sketcher.Constraint("Vertical", 0),
    Sketcher.Constraint("Horizontal", 1),
    Sketcher.Constraint("Vertical", 2),
    Sketcher.Constraint("Horizontal", 3),
    Sketcher.Constraint("Horizontal", 5),
    Sketcher.Constraint("Vertical", 6),
    Sketcher.Constraint("Horizontal", 7),
    Sketcher.Constraint("Vertical", 8),
    Sketcher.Constraint("Horizontal", 5, 2, 8, 2),
    Sketcher.Constraint("Vertical", 2, 2, 5, 2),
    Sketcher.Constraint("Radius", 4, Q("0.5 mm")),
    Sketcher.Constraint("DistanceX", 7, 1, 7, 2, Q("6 mm")),
    Sketcher.Constraint("DistanceY", 0, 2, 0, 1, Q("2 mm")),
    Sketcher.Constraint("Angle", 9, Q("-45 deg")),
    Sketcher.Constraint("DistanceX", 1, 2, 1, 1, Q("7.6 mm")),
    Sketcher.Constraint("DistanceX", 3, 1, 3, 2, Q("1.5 mm")),
    Sketcher.Constraint("DistanceY", 6, 1, 6, 2, Q("1.2 mm")),
    Sketcher.Constraint("DistanceY", -1, 1, 4, 3, Q("7.6 mm")),
    Sketcher.Constraint("DistanceX", 4, 3, -1, 1, Q("8.243212 mm")),
])
pad5 = body.newObject("PartDesign::Pad", "Pad004")
pad5.Profile = sketch11
pad5.Type = "TwoLengths"
pad5.Length = 3.95
pad5.Length2 = 3.95
pad5.Reversed = True

sketch12 = body.newObject("Sketcher::SketchObject", "Sketch011")
sketch12.AttachmentSupport = (doc.getObject("XZ_Plane"), [""])
sketch12.MapMode = "FlatFace"
sketch12.AttachmentOffset = App.Placement(V(0, 0, 9.743212), App.Rotation())
add_polygon(sketch12, [(-24.629117, 8.8), (-24.629117, 5), (-17.729117, 5), (-17.729117, 8.8)])
sketch12.addConstraint([
    Sketcher.Constraint("Vertical", 0),
    Sketcher.Constraint("Horizontal", 1),
    Sketcher.Constraint("Vertical", 2),
    Sketcher.Constraint("Horizontal", 3),
    Sketcher.Constraint("DistanceX", 1, 1, 1, 2, Q("6.9 mm")),
    Sketcher.Constraint("DistanceY", 0, 2, 0, 1, Q("3.8 mm")),
    Sketcher.Constraint("DistanceY", -1, 1, 0, 2, Q("5 mm")),
    Sketcher.Constraint("DistanceX", 0, 2, -1, 1, Q("24.629117 mm")),
])
pocket5 = body.newObject("PartDesign::Pocket", "Pocket004")
pocket5.Profile = sketch12
pocket5.Length = 5.5

sketch13 = body.newObject("Sketcher::SketchObject", "Sketch012")
sketch13.AttachmentSupport = (doc.getObject("XZ_Plane"), [""])
sketch13.MapMode = "FlatFace"
sketch13.AttachmentOffset = App.Placement(V(0, 0, 4.243212), App.Rotation())
sketch13.addGeometry([
    Part.Circle(V(-21.179117, 6.9, 0), V(0, 0, 1), 0.5),
    Part.Circle(V(-19.179117, 6.9, 0), V(0, 0, 1), 0.5),
    Part.Circle(V(-23.179117, 6.9, 0), V(0, 0, 1), 0.5),
], False)
sketch13.addConstraint([
    Sketcher.Constraint("Equal", 0, 1),
    Sketcher.Constraint("Equal", 1, 2),
    Sketcher.Constraint("Horizontal", 0, 3, 1, 3),
    Sketcher.Constraint("Horizontal", 1, 3, 2, 3),
    Sketcher.Constraint("Diameter", 0, Q("1 mm")),
    Sketcher.Constraint("DistanceX", 0, 3, 1, 3, Q("2 mm")),
    Sketcher.Constraint("DistanceX", 2, 3, 0, 3, Q("2 mm")),
    Sketcher.Constraint("DistanceY", -1, 1, 0, 3, Q("6.9 mm")),
    Sketcher.Constraint("DistanceX", 0, 3, -1, 1, Q("21.179117 mm")),
])
pad6 = body.newObject("PartDesign::Pad", "Pad005")
pad6.Profile = sketch13
pad6.Length = 5.25
doc.recompute()

fillet = body.newObject("PartDesign::Fillet", "Fillet")
fillet.Base = (pad6, edges_at(pad6, [(-21.179, -9.493, 7.4), (-19.179, -9.493, 7.4), (-23.179, -9.493, 7.4)]))
fillet.Radius = 0.5

doc.recompute()
